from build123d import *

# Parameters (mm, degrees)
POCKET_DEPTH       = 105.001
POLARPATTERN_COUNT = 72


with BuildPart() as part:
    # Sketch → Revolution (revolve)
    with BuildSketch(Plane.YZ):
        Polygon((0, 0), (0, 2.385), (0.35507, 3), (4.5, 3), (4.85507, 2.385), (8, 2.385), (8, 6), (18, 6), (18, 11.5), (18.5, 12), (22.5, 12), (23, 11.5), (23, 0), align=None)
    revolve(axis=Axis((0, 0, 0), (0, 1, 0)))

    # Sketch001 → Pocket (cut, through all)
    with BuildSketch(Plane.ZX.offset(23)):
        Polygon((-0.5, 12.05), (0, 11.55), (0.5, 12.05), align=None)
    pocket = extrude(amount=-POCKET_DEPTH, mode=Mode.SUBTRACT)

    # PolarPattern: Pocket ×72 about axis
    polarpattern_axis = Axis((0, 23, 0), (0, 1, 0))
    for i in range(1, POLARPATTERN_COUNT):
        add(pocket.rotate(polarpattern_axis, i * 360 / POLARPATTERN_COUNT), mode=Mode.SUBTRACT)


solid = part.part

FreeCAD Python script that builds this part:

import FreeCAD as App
import Part
import Sketcher
Q = App.Units.Quantity

doc = App.newDocument("Part")
params = doc.addObject("Spreadsheet::Sheet", "Params")
for row, (alias, value) in enumerate([
    ("sketch1_width", "23 mm"),
    ("sketch1_width2", "4 mm"),
    ("sketch1_width3", "10 mm"),
    ("sketch1_height", "11.5 mm"),
    ("sketch1_height2", "5.5 mm"),
    ("revolution_angle", "360 deg"),
    ("sketch2_height", "1 mm"),
], start=1):
    params.set(f"A{row}", alias)
    params.set(f"B{row}", "=" + value)
    params.setAlias(f"B{row}", alias)

body = doc.addObject("PartDesign::Body", "Body")

# Sketch on YZ plane
sketch1 = body.newObject("Sketcher::SketchObject", "Sketch")
sketch1.AttachmentSupport = (doc.getObject("YZ_Plane"), [""])
sketch1.MapMode = "FlatFace"
sketch1.addGeometry([
    Part.LineSegment(App.Vector(0, 2.4, 0), App.Vector(0, 0, 0)),  # 0
    Part.LineSegment(App.Vector(0, 0, 0), App.Vector(23, 0, 0)),  # 1
    Part.LineSegment(App.Vector(23, 0, 0), App.Vector(23, 11.5, 0)),  # 2
    Part.LineSegment(App.Vector(23, 11.5, 0), App.Vector(22.5, 12, 0)),  # 3
    Part.LineSegment(App.Vector(22.5, 12, 0), App.Vector(18.5, 12, 0)),  # 4
    Part.LineSegment(App.Vector(18.5, 12, 0), App.Vector(18, 11.5, 0)),  # 5
    Part.LineSegment(App.Vector(18, 11.5, 0), App.Vector(18, 6, 0)),  # 6
    Part.LineSegment(App.Vector(18, 6, 0), App.Vector(8, 6, 0)),  # 7
    Part.LineSegment(App.Vector(8, 6, 0), App.Vector(8, 2.4, 0)),  # 8
    Part.LineSegment(App.Vector(8, 2.4, 0), App.Vector(4.9, 2.4, 0)),  # 9
    Part.LineSegment(App.Vector(4.9, 2.4, 0), App.Vector(4.5, 3, 0)),  # 10
    Part.LineSegment(App.Vector(4.5, 3, 0), App.Vector(0.4, 3, 0)),  # 11
    Part.LineSegment(App.Vector(0.4, 3, 0), App.Vector(0, 2.4, 0)),  # 12
], False)
sketch1.addConstraint([
    Sketcher.Constraint("Coincident", 0, 2, 1, 1),
    Sketcher.Constraint("Coincident", 1, 2, 2, 1),
    Sketcher.Constraint("Coincident", 2, 2, 3, 1),
    Sketcher.Constraint("Coincident", 3, 2, 4, 1),
    Sketcher.Constraint("Coincident", 4, 2, 5, 1),
    Sketcher.Constraint("Coincident", 5, 2, 6, 1),
    Sketcher.Constraint("Coincident", 6, 2, 7, 1),
    Sketcher.Constraint("Coincident", 7, 2, 8, 1),
    Sketcher.Constraint("Coincident", 8, 2, 9, 1),
    Sketcher.Constraint("Coincident", 9, 2, 10, 1),
    Sketcher.Constraint("Coincident", 10, 2, 11, 1),
    Sketcher.Constraint("Coincident", 11, 2, 12, 1),
    Sketcher.Constraint("Coincident", 12, 2, 0, 1),
    Sketcher.Constraint("Vertical", 0),
    Sketcher.Constraint("Horizontal", 1),
    Sketcher.Constraint("Vertical", 2),
    Sketcher.Constraint("Horizontal", 4),
    Sketcher.Constraint("Vertical", 6),
    Sketcher.Constraint("Horizontal", 7),
    Sketcher.Constraint("Vertical", 8),
    Sketcher.Constraint("Horizontal", 9),
    Sketcher.Constraint("Horizontal", 11),
    Sketcher.Constraint("Coincident", 0, 2, -1, 1),
    Sketcher.Constraint("Perpendicular", 3, 5),
    Sketcher.Constraint("Horizontal", 2, 2, 5, 2),
    Sketcher.Constraint("Horizontal", 9, 2, 12, 2),
    Sketcher.Constraint("Equal", 3, 5),
    Sketcher.Constraint("Equal", 10, 12),
    Sketcher.Constraint("DistanceX", 1, 1, 1, 2, Q("23 mm")),
    Sketcher.Constraint("DistanceX", 4, 2, 4, 1, Q("4 mm")),
    Sketcher.Constraint("DistanceX", 7, 2, 7, 1, Q("10 mm")),
    Sketcher.Constraint("DistanceY", 2, 1, 2, 2, Q("11.5 mm")),
    Sketcher.Constraint("DistanceY", 6, 2, 6, 1, Q("5.5 mm")),
    Sketcher.Constraint("DistanceY", -1, 1, 3, 2, Q("12 mm")),
    Sketcher.Constraint("DistanceY", -1, 1, 10, 2, Q("3 mm")),
    Sketcher.Constraint("DistanceX", -1, 1, 10, 2, Q("4.5 mm")),
    Sketcher.Constraint("DistanceY", 0, 2, 0, 1, Q("2.385 mm")),
    Sketcher.Constraint("DistanceX", 9, 2, 9, 1, Q("3.14493 mm")),
])
sketch1.setExpression("Constraints[28]", "Params.sketch1_width")
sketch1.setExpression("Constraints[29]", "Params.sketch1_width2")
sketch1.setExpression("Constraints[30]", "Params.sketch1_width3")
sketch1.setExpression("Constraints[31]", "Params.sketch1_height")
sketch1.setExpression("Constraints[32]", "Params.sketch1_height2")
revolution = body.newObject("PartDesign::Revolution", "Revolution")
revolution.Profile = sketch1
revolution.ReferenceAxis = (sketch1, ["H_Axis"])
revolution.setExpression("Angle", "Params.revolution_angle")

# Sketch on XZ plane
sketch2 = body.newObject("Sketcher::SketchObject", "Sketch001")
sketch2.AttachmentSupport = (doc.getObject("XZ_Plane"), [""])
sketch2.MapMode = "FlatFace"
sketch2.AttachmentOffset = App.Placement(App.Vector(0, 0, -23), App.Rotation())
sketch2.addGeometry([
    Part.LineSegment(App.Vector(12.1, -0.5, 0), App.Vector(11.6, 0, 0)),
    Part.LineSegment(App.Vector(11.6, 0, 0), App.Vector(12.1, 0.5, 0)),
    Part.LineSegment(App.Vector(12.1, 0.5, 0), App.Vector(12.1, -0.5, 0)),
], False)
sketch2.addConstraint([
    Sketcher.Constraint("Coincident", 0, 2, 1, 1),
    Sketcher.Constraint("Coincident", 1, 2, 2, 1),
    Sketcher.Constraint("Coincident", 2, 2, 0, 1),
    Sketcher.Constraint("Vertical", 2),
    Sketcher.Constraint("PointOnObject", 0, 2, -1),
    Sketcher.Constraint("Perpendicular", 0, 1),
    Sketcher.Constraint("Equal", 0, 1),
    Sketcher.Constraint("DistanceY", 2, 2, 2, 1, Q("1 mm")),
    Sketcher.Constraint("DistanceX", -1, 1, 0, 2, Q("11.55 mm")),
])
sketch2.setExpression("Constraints[7]", "Params.sketch2_height")
pocket1 = body.newObject("PartDesign::Pocket", "Pocket")
pocket1.Profile = sketch2
pocket1.Type = "ThroughAll"
pocket1.Reversed = True
doc.recompute()

polarpattern = body.newObject("PartDesign::PolarPattern", "PolarPattern")
polarpattern.Originals = [pocket1]
polarpattern.Axis = (doc.getObject("Y_Axis"), [""])
polarpattern.Angle = 360
polarpattern.Occurrences = 72
body.Tip = polarpattern

doc.recompute()
